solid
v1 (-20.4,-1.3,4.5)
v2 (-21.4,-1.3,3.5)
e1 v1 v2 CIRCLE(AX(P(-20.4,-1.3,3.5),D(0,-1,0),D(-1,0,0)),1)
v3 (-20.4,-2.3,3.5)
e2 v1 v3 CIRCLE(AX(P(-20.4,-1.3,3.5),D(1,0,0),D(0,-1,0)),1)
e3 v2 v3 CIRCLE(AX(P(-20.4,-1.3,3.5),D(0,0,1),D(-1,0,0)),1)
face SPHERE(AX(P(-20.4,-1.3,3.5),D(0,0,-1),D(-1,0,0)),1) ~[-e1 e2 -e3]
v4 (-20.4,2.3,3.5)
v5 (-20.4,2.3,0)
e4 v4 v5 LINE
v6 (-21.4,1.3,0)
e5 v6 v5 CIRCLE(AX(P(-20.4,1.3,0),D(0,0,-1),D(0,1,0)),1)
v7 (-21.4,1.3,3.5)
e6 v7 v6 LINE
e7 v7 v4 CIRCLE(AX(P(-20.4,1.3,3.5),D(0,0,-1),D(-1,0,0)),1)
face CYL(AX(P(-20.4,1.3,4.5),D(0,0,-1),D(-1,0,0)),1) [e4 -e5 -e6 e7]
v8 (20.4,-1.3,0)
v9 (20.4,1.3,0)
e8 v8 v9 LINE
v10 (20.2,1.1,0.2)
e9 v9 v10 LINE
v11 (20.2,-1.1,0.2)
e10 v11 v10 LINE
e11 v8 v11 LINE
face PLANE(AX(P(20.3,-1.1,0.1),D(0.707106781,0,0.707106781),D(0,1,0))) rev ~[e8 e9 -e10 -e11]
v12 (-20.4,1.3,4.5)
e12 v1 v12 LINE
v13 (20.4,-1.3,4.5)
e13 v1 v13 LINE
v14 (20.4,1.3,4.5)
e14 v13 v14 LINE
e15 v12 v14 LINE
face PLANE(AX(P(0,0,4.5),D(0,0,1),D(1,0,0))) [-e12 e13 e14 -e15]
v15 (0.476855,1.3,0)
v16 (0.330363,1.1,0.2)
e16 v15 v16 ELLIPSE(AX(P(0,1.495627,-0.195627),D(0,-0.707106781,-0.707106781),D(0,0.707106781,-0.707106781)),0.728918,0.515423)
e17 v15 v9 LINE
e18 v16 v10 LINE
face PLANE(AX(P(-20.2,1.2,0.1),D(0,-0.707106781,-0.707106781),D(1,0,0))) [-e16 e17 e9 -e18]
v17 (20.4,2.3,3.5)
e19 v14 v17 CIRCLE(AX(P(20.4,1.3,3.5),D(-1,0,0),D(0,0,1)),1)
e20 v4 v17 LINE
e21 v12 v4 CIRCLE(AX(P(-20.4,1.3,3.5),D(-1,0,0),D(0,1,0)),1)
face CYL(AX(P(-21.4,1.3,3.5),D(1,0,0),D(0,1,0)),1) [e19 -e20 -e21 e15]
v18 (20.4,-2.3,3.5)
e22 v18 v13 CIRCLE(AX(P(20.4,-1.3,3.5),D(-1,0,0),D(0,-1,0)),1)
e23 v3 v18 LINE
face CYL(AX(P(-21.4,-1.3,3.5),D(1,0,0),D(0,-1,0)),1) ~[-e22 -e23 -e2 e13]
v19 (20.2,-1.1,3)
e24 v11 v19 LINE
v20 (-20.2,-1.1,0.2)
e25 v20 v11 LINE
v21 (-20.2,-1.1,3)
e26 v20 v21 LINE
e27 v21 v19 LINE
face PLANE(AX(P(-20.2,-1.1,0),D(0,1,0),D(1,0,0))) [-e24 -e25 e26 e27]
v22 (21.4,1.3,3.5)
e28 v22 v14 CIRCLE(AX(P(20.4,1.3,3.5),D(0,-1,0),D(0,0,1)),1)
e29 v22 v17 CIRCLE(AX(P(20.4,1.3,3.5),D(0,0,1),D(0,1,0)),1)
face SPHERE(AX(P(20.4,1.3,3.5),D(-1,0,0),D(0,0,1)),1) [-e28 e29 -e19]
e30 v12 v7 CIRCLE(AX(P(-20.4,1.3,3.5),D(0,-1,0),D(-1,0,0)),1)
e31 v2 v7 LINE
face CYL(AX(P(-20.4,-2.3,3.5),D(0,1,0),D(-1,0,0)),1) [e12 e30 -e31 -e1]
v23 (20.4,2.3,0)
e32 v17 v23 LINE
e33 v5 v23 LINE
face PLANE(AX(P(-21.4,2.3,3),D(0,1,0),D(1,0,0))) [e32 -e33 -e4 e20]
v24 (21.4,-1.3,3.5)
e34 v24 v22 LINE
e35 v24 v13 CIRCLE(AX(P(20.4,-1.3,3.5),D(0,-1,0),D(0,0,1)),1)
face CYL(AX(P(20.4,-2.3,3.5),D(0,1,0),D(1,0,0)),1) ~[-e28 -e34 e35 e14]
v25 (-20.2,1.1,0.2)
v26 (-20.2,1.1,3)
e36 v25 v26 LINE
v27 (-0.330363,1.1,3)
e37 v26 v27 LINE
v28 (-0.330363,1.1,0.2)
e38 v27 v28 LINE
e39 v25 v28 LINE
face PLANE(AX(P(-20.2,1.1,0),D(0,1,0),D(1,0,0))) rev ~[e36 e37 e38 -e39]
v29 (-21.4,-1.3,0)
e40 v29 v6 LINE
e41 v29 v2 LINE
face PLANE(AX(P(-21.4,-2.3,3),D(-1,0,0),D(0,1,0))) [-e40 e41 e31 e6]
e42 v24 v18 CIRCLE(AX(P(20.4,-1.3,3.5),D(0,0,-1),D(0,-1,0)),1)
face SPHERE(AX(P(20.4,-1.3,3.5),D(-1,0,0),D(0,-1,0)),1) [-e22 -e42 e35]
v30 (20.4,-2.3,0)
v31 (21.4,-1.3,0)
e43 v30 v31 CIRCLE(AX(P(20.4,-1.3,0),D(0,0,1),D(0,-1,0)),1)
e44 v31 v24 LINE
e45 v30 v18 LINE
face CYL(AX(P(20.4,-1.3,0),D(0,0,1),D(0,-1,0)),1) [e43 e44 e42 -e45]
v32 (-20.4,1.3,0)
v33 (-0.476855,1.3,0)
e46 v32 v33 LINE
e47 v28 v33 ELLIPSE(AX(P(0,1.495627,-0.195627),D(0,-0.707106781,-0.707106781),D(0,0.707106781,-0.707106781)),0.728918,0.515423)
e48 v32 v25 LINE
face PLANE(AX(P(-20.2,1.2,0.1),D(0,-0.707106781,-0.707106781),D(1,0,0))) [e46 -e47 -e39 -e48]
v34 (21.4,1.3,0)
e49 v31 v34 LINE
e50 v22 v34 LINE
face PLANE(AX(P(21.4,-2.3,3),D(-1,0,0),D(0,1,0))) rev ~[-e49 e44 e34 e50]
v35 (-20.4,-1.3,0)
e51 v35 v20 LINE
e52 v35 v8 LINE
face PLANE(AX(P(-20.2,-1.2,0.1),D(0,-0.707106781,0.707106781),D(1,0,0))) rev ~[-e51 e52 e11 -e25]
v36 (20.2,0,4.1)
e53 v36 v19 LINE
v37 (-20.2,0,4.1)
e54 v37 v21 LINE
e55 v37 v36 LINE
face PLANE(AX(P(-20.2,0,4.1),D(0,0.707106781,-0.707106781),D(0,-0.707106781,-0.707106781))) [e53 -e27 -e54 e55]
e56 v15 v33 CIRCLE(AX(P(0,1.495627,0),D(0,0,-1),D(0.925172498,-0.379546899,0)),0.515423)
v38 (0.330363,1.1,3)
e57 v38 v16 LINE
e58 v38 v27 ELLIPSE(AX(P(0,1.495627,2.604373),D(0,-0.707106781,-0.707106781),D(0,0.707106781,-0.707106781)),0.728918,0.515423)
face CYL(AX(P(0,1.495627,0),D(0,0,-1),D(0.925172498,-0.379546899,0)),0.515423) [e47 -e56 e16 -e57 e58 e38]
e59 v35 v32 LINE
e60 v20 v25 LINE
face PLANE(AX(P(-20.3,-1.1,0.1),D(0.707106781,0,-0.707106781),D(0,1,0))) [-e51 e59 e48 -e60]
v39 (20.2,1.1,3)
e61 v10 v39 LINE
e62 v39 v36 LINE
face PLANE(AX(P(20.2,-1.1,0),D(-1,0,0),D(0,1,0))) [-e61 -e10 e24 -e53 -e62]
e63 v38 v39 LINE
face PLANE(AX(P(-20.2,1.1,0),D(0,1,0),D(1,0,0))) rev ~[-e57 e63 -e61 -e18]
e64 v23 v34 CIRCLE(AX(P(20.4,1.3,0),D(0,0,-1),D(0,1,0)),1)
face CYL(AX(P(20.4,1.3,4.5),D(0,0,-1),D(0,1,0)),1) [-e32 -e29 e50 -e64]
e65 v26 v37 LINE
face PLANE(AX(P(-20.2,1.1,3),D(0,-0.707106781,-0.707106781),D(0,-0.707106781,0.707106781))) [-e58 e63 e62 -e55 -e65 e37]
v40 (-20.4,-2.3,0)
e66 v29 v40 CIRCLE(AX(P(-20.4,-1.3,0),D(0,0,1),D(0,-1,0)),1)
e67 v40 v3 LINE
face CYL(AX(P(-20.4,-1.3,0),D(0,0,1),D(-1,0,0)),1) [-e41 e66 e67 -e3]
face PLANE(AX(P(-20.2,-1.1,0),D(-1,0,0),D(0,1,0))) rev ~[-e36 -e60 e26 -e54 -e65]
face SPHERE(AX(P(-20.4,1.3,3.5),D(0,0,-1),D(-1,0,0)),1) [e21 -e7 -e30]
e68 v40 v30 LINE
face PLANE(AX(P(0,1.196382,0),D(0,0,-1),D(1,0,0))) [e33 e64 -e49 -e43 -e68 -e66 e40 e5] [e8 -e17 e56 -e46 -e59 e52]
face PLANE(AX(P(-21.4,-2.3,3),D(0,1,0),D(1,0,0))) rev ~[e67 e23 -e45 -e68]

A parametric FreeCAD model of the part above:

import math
import FreeCAD as App
import Part
import Sketcher

V = App.Vector


def edges_at(feature, points):
    """Names of the edges that pass closest to the given points."""
    edges = feature.Shape.Edges
    near = lambda p: min(range(len(edges)), key=lambda i: edges[i].distToShape(Part.Vertex(*p))[0])
    return sorted({f"Edge{near(p) + 1}" for p in points})


def add_polygon(sketch, points):
    """Adds a closed chain of lines whose ends are joined by coincident constraints."""
    first, n = sketch.GeometryCount, len(points)
    for a, b in zip(points, points[1:] + points[:1]):
        sketch.addGeometry(Part.LineSegment(App.Vector(*a, 0), App.Vector(*b, 0)), False)
    for i in range(n):
        sketch.addConstraint(Sketcher.Constraint("Coincident", first + i, 2, first + (i + 1) % n, 1))

doc = App.newDocument("Part")
body = doc.addObject("PartDesign::Body", "Body")

sketch1 = body.newObject("Sketcher::SketchObject", "Sketch")
sketch1.AttachmentSupport = (doc.getObject("XY_Plane"), [""])
sketch1.MapMode = "FlatFace"
add_polygon(sketch1, [(-21.4, 2.3), (-21.4, -2.3), (21.4, -2.3), (21.4, 2.3)])
add_polygon(sketch1, [(20.2, -1.1), (-20.2, -1.1), (-20.2, 1.1), (20.2, 1.1)])
sketch1.addConstraint(Sketcher.Constraint("Vertical", 0))
sketch1.addConstraint(Sketcher.Constraint("Horizontal", 1))
sketch1.addConstraint(Sketcher.Constraint("Vertical", 2))
sketch1.addConstraint(Sketcher.Constraint("Horizontal", 3))
sketch1.addConstraint(Sketcher.Constraint("Horizontal", 4))
sketch1.addConstraint(Sketcher.Constraint("Vertical", 5))
sketch1.addConstraint(Sketcher.Constraint("Horizontal", 6))
sketch1.addConstraint(Sketcher.Constraint("Vertical", 7))
sketch1.addConstraint(Sketcher.Constraint("Symmetric", 0, 2, 2, 2, -1, 1))
sketch1.addConstraint(Sketcher.Constraint("Symmetric", 4, 2, 6, 2, -1, 1))
sketch1.addConstraint(Sketcher.Constraint("DistanceX", 1, 1, 1, 2, 42.8))
sketch1.addConstraint(Sketcher.Constraint("DistanceX", 4, 2, 4, 1, 40.4))
sketch1.addConstraint(Sketcher.Constraint("DistanceY", 0, 2, 0, 1, 4.6))
sketch1.addConstraint(Sketcher.Constraint("DistanceY", 5, 1, 5, 2, 2.2))
pad1 = body.newObject("PartDesign::Pad", "Pad")
pad1.Profile = sketch1
pad1.Length = 3

sketch2 = body.newObject("Sketcher::SketchObject", "Sketch001")
sketch2.AttachmentSupport = (doc.getObject("XY_Plane"), [""])
sketch2.MapMode = "FlatFace"
sketch2.AttachmentOffset = App.Placement(V(0, 0, 3), App.Rotation())
add_polygon(sketch2, [(-21.4, 2.3), (-21.4, -2.3), (21.4, -2.3), (21.4, 2.3)])
sketch2.addConstraint(Sketcher.Constraint("Vertical", 0))
sketch2.addConstraint(Sketcher.Constraint("Horizontal", 1))
sketch2.addConstraint(Sketcher.Constraint("Vertical", 2))
sketch2.addConstraint(Sketcher.Constraint("Horizontal", 3))
sketch2.addConstraint(Sketcher.Constraint("Symmetric", 0, 2, 2, 2, -1, 1))
sketch2.addConstraint(Sketcher.Constraint("DistanceX", 1, 1, 1, 2, 42.8))
sketch2.addConstraint(Sketcher.Constraint("DistanceY", 0, 2, 0, 1, 4.6))
pad2 = body.newObject("PartDesign::Pad", "Pad001")
pad2.Profile = sketch2
pad2.Length = 1.5

sketch3 = body.newObject("Sketcher::SketchObject", "Sketch002")
sketch3.AttachmentSupport = (doc.getObject("YZ_Plane"), [""])
sketch3.MapMode = "FlatFace"
sketch3.AttachmentOffset = App.Placement(V(0, 0, -20.2), App.Rotation())
add_polygon(sketch3, [(-1.1, 3), (1.1, 3), (0, 4.1)])
sketch3.addConstraint(Sketcher.Constraint("Horizontal", 0))
sketch3.addConstraint(Sketcher.Constraint("PointOnObject", 1, 2, -2))
sketch3.addConstraint(Sketcher.Constraint("Perpendicular", 1, 2))
sketch3.addConstraint(Sketcher.Constraint("Equal", 1, 2))
sketch3.addConstraint(Sketcher.Constraint("DistanceX", 0, 1, 0, 2, 2.2))
sketch3.addConstraint(Sketcher.Constraint("DistanceY", -1, 1, 0, 2, 3.0))
pocket1 = body.newObject("PartDesign::Pocket", "Pocket")
pocket1.Profile = sketch3
pocket1.Length = 40.4
pocket1.Reversed = True
doc.recompute()

chamfer = body.newObject("PartDesign::Chamfer", "Chamfer")
chamfer.Base = (pocket1, edges_at(pocket1, [
    (0, 1.1, 0),
    (-20.2, 0, 0),
    (0, -1.1, 0),
    (20.2, 0, 0),
]))
chamfer.Size = 0.2
doc.recompute()

fillet = body.newObject("PartDesign::Fillet", "Fillet")
fillet.Base = (chamfer, edges_at(chamfer, [
    (-21.4, -2.3, 2.25),
    (-21.4, 2.3, 2.25),
    (-21.4, 0, 4.5),
    (0, 2.3, 4.5),
    (0, -2.3, 4.5),
    (21.4, -2.3, 2.25),
    (21.4, 0, 4.5),
    (21.4, 2.3, 2.25),
]))
fillet.Radius = 1

sketch4 = body.newObject("Sketcher::SketchObject", "Sketch003")
sketch4.AttachmentSupport = (doc.getObject("XY_Plane"), [""])
sketch4.MapMode = "FlatFace"
sketch4.addGeometry(Part.LineSegment(V(-0.5, 1.3, 0), V(0.5, 1.3, 0)), False)
sketch4.addGeometry(Part.ArcOfCircle(Part.Circle(V(0, 1.5, 0), V(0, 0, 1), 0.5), math.radians(-158), math.radians(-22)), False)
sketch4.addConstraint(Sketcher.Constraint("Coincident", 0, 1, 1, 1))
sketch4.addConstraint(Sketcher.Constraint("Coincident", 1, 2, 0, 2))
sketch4.addConstraint(Sketcher.Constraint("Horizontal", 0))
sketch4.addConstraint(Sketcher.Constraint("PointOnObject", 1, 3, -2))
sketch4.addConstraint(Sketcher.Constraint("DistanceY", -1, 1, 0, 1, 1.3))
sketch4.addConstraint(Sketcher.Constraint("Radius", 1, 0.515423))
sketch4.addConstraint(Sketcher.Constraint("DistanceX", 0, 1, 0, 2, 0.95371))
pad3 = body.newObject("PartDesign::Pad", "Pad002")
pad3.Profile = sketch4
pad3.Length = 4.119796

doc.recompute()
